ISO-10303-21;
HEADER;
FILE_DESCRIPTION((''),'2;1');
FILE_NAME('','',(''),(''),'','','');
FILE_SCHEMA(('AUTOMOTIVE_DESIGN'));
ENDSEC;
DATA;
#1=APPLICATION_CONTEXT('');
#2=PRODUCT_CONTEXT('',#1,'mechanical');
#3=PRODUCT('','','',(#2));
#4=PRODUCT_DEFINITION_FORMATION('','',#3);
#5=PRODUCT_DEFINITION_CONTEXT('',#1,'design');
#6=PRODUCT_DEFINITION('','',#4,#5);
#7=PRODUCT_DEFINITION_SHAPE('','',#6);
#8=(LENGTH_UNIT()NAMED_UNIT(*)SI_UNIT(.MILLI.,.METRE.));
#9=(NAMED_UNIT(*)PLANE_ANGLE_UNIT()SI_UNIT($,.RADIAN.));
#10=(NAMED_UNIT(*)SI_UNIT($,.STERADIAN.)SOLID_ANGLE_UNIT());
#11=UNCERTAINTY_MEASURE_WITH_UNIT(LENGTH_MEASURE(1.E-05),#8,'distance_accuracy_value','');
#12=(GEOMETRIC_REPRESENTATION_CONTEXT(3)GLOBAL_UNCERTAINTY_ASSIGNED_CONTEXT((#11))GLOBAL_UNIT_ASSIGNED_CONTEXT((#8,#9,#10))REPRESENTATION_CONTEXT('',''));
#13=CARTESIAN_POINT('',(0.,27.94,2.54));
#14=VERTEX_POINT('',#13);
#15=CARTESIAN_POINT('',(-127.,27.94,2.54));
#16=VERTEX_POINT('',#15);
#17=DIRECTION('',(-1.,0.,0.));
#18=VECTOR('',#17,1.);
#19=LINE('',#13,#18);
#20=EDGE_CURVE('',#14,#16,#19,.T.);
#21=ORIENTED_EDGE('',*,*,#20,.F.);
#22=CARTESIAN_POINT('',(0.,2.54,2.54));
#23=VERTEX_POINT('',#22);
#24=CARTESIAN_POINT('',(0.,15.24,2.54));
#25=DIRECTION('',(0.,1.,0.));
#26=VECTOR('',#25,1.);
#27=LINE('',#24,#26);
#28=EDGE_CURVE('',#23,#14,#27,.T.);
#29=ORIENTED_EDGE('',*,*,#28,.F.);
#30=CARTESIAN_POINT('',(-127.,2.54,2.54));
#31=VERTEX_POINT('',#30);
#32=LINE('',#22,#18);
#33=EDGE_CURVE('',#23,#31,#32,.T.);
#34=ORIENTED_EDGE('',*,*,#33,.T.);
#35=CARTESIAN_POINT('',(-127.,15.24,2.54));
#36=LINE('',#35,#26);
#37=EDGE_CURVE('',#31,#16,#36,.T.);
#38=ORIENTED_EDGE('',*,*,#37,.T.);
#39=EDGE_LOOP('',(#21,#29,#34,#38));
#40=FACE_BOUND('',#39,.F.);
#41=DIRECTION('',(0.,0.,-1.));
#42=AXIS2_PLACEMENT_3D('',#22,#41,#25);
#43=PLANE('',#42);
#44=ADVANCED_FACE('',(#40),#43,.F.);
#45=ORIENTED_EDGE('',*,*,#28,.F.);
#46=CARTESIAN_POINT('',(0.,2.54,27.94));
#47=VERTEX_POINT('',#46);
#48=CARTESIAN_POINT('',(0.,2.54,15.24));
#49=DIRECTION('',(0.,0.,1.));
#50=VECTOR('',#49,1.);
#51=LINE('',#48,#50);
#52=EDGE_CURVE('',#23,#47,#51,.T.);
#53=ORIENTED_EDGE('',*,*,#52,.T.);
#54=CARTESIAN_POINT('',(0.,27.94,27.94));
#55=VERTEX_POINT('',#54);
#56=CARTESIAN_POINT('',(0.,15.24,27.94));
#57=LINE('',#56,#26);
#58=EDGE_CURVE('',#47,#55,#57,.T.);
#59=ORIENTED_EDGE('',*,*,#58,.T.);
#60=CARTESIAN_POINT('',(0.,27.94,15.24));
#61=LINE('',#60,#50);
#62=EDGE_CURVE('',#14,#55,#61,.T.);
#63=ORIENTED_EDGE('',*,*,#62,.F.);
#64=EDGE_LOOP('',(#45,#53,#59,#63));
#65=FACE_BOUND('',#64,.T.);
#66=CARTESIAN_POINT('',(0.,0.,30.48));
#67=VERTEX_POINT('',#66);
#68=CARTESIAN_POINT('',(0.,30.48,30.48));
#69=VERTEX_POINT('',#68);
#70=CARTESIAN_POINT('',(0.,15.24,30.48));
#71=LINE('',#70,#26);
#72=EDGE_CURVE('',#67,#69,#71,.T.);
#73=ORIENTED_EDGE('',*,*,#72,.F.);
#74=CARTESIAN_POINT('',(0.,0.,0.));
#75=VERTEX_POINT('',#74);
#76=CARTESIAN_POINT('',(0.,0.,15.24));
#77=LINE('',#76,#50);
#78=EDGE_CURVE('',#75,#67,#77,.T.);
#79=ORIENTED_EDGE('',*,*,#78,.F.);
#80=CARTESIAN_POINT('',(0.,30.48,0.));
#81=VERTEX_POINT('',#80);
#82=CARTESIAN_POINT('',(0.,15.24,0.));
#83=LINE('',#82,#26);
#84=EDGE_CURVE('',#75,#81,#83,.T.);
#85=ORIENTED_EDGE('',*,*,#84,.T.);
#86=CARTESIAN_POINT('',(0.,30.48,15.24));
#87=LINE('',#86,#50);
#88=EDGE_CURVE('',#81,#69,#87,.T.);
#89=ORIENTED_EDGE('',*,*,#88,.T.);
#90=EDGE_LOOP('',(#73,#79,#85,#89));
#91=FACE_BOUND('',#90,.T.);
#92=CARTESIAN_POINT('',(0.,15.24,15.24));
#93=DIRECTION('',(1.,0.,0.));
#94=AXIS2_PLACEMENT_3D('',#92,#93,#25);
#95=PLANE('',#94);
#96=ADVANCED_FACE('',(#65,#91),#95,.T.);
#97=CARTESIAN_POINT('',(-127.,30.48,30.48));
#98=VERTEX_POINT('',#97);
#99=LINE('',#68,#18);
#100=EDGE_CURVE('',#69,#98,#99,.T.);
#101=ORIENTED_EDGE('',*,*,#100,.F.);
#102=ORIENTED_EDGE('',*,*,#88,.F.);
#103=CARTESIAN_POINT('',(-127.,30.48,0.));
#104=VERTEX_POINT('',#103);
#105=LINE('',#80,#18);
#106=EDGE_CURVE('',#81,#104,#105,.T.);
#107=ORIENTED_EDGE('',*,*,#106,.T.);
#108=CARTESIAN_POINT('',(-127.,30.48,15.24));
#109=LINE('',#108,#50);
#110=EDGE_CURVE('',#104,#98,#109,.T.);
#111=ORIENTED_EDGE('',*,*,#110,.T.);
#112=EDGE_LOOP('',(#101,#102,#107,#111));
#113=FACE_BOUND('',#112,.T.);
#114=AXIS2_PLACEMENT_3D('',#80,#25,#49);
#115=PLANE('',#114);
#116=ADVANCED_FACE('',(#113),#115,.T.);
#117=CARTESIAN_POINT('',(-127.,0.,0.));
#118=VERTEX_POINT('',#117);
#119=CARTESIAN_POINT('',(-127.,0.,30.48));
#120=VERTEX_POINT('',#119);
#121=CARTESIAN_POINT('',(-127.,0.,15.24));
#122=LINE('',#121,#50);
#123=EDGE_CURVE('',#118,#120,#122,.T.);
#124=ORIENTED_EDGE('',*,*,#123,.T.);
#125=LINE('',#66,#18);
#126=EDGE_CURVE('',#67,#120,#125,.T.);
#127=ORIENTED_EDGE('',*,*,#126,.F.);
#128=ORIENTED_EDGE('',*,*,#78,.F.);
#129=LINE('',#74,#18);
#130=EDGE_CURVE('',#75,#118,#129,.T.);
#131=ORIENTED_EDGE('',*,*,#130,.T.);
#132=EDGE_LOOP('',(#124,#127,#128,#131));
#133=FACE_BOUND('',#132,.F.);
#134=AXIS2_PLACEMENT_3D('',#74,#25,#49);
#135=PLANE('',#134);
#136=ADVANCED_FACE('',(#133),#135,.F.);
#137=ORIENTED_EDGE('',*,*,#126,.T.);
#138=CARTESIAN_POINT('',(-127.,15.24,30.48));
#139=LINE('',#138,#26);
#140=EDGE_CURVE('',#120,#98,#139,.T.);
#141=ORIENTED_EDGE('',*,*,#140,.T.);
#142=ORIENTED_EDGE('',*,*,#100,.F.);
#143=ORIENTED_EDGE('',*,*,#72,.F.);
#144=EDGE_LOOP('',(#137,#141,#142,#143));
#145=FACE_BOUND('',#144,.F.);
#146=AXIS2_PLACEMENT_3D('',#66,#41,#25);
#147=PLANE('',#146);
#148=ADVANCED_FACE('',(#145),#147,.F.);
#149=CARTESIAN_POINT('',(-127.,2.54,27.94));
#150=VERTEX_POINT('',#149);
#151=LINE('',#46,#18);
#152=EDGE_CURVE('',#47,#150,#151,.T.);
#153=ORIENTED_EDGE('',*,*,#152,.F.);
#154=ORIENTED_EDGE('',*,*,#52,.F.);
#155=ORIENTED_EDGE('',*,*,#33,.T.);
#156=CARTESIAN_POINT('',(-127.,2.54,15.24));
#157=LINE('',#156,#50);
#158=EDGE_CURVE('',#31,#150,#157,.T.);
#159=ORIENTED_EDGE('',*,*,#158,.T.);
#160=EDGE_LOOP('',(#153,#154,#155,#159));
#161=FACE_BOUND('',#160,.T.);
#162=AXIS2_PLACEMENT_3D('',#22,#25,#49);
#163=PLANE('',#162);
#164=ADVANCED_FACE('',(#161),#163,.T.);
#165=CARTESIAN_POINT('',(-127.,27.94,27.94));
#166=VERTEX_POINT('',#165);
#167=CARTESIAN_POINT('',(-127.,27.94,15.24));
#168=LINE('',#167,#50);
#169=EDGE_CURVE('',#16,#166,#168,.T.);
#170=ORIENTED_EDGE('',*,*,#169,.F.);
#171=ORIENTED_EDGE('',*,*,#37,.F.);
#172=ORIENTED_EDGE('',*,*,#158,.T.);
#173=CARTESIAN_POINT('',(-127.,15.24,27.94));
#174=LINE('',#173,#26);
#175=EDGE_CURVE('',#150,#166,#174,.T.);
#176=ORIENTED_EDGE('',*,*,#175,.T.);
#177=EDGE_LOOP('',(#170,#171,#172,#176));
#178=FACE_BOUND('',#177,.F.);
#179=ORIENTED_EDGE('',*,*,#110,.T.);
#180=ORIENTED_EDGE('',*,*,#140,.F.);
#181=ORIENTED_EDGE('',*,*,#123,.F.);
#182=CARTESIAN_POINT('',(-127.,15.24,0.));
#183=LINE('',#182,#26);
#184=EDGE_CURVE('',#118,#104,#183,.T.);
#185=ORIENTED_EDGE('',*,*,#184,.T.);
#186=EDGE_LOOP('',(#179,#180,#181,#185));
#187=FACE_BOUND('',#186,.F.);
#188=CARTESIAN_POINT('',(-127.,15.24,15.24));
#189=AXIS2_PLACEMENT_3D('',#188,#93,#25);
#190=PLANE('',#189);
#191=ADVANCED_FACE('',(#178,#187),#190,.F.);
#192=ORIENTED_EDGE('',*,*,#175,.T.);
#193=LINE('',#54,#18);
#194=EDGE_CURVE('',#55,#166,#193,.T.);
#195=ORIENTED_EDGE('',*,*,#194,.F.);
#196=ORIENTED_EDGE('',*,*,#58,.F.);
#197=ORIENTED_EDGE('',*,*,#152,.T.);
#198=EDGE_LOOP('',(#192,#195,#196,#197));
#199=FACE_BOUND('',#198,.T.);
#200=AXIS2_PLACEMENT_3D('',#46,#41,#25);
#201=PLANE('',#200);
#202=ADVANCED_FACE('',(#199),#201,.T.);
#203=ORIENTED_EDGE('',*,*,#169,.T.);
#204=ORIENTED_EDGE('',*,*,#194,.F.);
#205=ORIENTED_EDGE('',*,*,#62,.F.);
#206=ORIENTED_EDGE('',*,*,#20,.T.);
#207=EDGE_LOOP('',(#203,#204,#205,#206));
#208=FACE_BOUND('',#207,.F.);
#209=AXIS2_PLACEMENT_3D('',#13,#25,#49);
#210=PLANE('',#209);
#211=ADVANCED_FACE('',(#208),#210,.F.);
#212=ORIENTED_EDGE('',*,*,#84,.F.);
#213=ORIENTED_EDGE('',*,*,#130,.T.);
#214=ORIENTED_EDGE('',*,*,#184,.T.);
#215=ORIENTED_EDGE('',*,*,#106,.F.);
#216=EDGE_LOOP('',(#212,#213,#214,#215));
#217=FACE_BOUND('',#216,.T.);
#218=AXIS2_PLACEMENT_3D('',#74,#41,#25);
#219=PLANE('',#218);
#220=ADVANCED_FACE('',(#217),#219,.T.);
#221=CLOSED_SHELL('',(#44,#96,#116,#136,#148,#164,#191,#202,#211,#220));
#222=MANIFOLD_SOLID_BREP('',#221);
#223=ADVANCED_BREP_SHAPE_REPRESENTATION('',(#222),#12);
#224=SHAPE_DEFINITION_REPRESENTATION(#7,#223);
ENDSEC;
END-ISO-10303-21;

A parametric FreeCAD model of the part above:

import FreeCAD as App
import Part
import Sketcher
Q = App.Units.Quantity

doc = App.newDocument("Part")
body = doc.addObject("PartDesign::Body", "Body")

# Sketch on YZ plane
sketch1 = body.newObject("Sketcher::SketchObject", "Sketch")
sketch1.AttachmentSupport = (doc.getObject("YZ_Plane"), [""])
sketch1.MapMode = "FlatFace"
sketch1.addGeometry([
    Part.LineSegment(App.Vector(0, 30, 0), App.Vector(0, 0, 0)),
    Part.LineSegment(App.Vector(0, 0, 0), App.Vector(30, 0, 0)),
    Part.LineSegment(App.Vector(30, 0, 0), App.Vector(30, 30, 0)),
    Part.LineSegment(App.Vector(30, 30, 0), App.Vector(0, 30, 0)),
], False)
sketch1.addConstraint([
    Sketcher.Constraint("Coincident", 0, 2, 1, 1),
    Sketcher.Constraint("Coincident", 1, 2, 2, 1),
    Sketcher.Constraint("Coincident", 2, 2, 3, 1),
    Sketcher.Constraint("Coincident", 3, 2, 0, 1),
    Sketcher.Constraint("Vertical", 0),
    Sketcher.Constraint("Horizontal", 1),
    Sketcher.Constraint("Vertical", 2),
    Sketcher.Constraint("Horizontal", 3),
    Sketcher.Constraint("Coincident", 0, 2, -1, 1),
    Sketcher.Constraint("Equal", 3, 0),
    Sketcher.Constraint("DistanceX", 1, 1, 1, 2, Q("1.2 in")),
])
pad1 = body.newObject("PartDesign::Pad", "Pad")
pad1.Profile = sketch1
pad1.Length = Q("5 in")
pad1.Reversed = True

# Sketch on YZ plane
sketch2 = body.newObject("Sketcher::SketchObject", "Sketch001")
sketch2.AttachmentSupport = (doc.getObject("YZ_Plane"), [""])
sketch2.MapMode = "FlatFace"
sketch2.addGeometry([
    Part.LineSegment(App.Vector(3, 28, 0), App.Vector(3, 3, 0)),
    Part.LineSegment(App.Vector(3, 3, 0), App.Vector(28, 3, 0)),
    Part.LineSegment(App.Vector(28, 3, 0), App.Vector(28, 28, 0)),
    Part.LineSegment(App.Vector(28, 28, 0), App.Vector(3, 28, 0)),
], False)
sketch2.addConstraint([
    Sketcher.Constraint("Coincident", 0, 2, 1, 1),
    Sketcher.Constraint("Coincident", 1, 2, 2, 1),
    Sketcher.Constraint("Coincident", 2, 2, 3, 1),
    Sketcher.Constraint("Coincident", 3, 2, 0, 1),
    Sketcher.Constraint("Vertical", 0),
    Sketcher.Constraint("Horizontal", 1),
    Sketcher.Constraint("Vertical", 2),
    Sketcher.Constraint("Horizontal", 3),
    Sketcher.Constraint("Equal", 3, 0),
    Sketcher.Constraint("DistanceX", 1, 1, 1, 2, Q("1 in")),
    Sketcher.Constraint("DistanceX", -1, 1, 0, 2, Q("0.1 in")),
    Sketcher.Constraint("DistanceY", -1, 1, 0, 2, Q("0.1 in")),
])
pocket1 = body.newObject("PartDesign::Pocket", "Pocket")
pocket1.Profile = sketch2
pocket1.Length = Q("5 in")

doc.recompute()
